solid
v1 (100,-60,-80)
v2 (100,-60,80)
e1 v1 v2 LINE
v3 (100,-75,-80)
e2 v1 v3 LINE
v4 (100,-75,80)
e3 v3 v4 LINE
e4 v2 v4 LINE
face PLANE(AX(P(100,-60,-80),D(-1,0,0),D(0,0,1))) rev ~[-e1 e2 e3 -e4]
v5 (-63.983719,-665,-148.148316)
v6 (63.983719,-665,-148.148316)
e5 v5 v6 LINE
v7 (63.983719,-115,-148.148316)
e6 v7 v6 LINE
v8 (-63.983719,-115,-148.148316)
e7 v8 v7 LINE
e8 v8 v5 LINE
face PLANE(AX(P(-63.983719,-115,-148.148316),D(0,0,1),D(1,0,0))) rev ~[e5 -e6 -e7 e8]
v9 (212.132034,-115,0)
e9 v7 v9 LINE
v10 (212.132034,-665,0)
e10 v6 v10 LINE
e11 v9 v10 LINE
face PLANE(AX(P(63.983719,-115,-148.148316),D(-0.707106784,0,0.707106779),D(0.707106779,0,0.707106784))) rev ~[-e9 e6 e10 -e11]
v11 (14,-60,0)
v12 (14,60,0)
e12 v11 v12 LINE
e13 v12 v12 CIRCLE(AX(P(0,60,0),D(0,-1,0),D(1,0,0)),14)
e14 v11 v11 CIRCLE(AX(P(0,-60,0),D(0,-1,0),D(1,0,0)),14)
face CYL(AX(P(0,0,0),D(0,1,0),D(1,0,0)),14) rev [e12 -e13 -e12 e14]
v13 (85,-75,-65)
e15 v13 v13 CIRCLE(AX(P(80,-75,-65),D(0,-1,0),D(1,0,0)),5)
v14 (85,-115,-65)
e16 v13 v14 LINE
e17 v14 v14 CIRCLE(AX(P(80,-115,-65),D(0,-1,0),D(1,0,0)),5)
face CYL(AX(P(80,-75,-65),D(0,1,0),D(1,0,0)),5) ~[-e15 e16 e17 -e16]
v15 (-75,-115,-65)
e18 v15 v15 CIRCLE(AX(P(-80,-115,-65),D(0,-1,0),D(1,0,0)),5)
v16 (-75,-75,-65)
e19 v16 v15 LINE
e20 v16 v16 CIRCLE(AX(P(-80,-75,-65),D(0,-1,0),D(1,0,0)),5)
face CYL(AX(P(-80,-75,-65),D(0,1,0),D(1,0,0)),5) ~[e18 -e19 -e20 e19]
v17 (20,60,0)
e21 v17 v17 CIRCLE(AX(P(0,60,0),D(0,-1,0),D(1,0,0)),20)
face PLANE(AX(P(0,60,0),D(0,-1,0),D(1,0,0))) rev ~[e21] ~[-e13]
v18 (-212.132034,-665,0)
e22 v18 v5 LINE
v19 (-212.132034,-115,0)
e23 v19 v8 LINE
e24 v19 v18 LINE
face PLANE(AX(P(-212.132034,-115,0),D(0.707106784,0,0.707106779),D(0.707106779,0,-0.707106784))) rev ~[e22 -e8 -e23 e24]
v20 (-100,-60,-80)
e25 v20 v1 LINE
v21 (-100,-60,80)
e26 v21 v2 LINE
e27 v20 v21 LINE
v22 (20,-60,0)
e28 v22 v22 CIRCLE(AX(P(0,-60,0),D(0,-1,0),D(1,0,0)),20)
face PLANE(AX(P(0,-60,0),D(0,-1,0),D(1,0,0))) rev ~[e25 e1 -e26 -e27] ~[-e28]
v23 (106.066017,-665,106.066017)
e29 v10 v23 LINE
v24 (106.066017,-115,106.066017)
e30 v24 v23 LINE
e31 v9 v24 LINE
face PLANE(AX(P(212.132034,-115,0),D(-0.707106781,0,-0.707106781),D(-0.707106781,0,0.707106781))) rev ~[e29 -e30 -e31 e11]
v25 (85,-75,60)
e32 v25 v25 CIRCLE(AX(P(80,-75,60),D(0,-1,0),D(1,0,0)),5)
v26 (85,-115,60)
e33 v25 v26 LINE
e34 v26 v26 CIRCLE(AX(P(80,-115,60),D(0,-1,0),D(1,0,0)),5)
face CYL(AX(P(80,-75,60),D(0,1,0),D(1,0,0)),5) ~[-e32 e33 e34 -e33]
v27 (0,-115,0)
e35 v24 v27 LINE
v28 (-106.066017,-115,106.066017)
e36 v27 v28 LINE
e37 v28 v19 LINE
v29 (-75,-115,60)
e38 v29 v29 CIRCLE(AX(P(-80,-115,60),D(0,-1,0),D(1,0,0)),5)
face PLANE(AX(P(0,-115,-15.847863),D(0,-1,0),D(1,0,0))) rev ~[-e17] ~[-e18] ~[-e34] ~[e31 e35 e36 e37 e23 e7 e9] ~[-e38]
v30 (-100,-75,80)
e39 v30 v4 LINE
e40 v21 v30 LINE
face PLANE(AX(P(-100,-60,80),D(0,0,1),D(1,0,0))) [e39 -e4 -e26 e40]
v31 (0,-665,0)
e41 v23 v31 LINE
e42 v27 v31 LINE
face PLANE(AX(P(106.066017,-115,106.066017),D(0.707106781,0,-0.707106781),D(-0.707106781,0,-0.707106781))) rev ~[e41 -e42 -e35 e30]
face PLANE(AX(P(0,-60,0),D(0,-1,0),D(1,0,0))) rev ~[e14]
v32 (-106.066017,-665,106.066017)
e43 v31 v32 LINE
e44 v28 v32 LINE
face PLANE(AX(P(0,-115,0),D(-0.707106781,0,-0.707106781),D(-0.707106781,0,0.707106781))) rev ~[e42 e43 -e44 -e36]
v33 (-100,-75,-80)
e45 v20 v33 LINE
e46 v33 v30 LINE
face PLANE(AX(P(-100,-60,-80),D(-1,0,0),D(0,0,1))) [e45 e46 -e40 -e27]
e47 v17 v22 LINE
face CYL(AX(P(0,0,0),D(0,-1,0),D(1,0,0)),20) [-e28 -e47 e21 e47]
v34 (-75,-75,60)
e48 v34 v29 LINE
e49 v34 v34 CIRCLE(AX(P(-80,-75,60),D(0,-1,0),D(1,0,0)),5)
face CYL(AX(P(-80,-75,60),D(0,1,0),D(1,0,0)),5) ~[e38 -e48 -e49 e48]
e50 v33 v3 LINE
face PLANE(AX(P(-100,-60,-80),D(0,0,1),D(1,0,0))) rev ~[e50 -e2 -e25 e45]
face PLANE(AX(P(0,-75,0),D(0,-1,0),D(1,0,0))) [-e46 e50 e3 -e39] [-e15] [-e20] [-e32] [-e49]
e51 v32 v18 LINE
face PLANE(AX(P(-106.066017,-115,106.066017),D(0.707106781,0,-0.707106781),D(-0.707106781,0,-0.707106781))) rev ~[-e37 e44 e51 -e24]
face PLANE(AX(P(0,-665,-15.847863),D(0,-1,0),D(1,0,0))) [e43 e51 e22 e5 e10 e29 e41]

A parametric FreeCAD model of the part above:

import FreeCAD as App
import Part
import Sketcher

V = App.Vector
Q = App.Units.Quantity

doc = App.newDocument("Part")
body = doc.addObject("PartDesign::Body", "Body")

# Sketch on XZ plane
sketch1 = doc.addObject("Sketcher::SketchObject", "Sketch")
body.addObject(sketch1)
sketch1.AttachmentSupport = (doc.XZ_Plane, [""])
sketch1.MapMode = "FlatFace"
sketch1.addGeometry([
    Part.Circle(V(0, 0, 0), V(0, 0, 1), 20),
    Part.Circle(V(0, 0, 0), V(0, 0, 1), 14),
], False)
sketch1.addConstraint([
    Sketcher.Constraint("Coincident", 0, 3, -1, 1),
    Sketcher.Constraint("Coincident", 1, 3, -1, 1),
    Sketcher.Constraint("Diameter", 0, Q("40 mm")),
    Sketcher.Constraint("Diameter", 1, Q("28 mm")),
])
pad1 = doc.addObject("PartDesign::Pad", "Pad")
body.addObject(pad1)
pad1.Profile = sketch1
pad1.Length = 120
pad1.Midplane = True

# Sketch on XZ plane
sketch2 = doc.addObject("Sketcher::SketchObject", "Sketch001")
body.addObject(sketch2)
sketch2.AttachmentSupport = (doc.XZ_Plane, [""])
sketch2.MapMode = "FlatFace"
sketch2.AttachmentOffset = App.Placement(V(0, 0, 60), App.Rotation())
sketch2.addGeometry([
    Part.LineSegment(V(-100, 80, 0), V(-100, -80, 0)),
    Part.LineSegment(V(-100, -80, 0), V(100, -80, 0)),
    Part.LineSegment(V(100, -80, 0), V(100, 80, 0)),
    Part.LineSegment(V(100, 80, 0), V(-100, 80, 0)),
], False)
sketch2.addConstraint([
    Sketcher.Constraint("Coincident", 0, 2, 1, 1),
    Sketcher.Constraint("Coincident", 1, 2, 2, 1),
    Sketcher.Constraint("Coincident", 2, 2, 3, 1),
    Sketcher.Constraint("Coincident", 3, 2, 0, 1),
    Sketcher.Constraint("Vertical", 0),
    Sketcher.Constraint("Horizontal", 1),
    Sketcher.Constraint("Vertical", 2),
    Sketcher.Constraint("Horizontal", 3),
    Sketcher.Constraint("Symmetric", 0, 2, 2, 2, -1, 1),
    Sketcher.Constraint("DistanceX", 1, 1, 1, 2, Q("200 mm")),
    Sketcher.Constraint("DistanceY", 0, 2, 0, 1, Q("160 mm")),
])
pad2 = doc.addObject("PartDesign::Pad", "Pad001")
body.addObject(pad2)
pad2.Profile = sketch2
pad2.Length = 15

# Sketch on XZ plane
sketch3 = doc.addObject("Sketcher::SketchObject", "Sketch002")
body.addObject(sketch3)
sketch3.AttachmentSupport = (doc.XZ_Plane, [""])
sketch3.MapMode = "FlatFace"
sketch3.AttachmentOffset = App.Placement(V(0, 0, 75), App.Rotation())
sketch3.addGeometry([
    Part.Circle(V(-80, 60, 0), V(0, 0, 1), 5),
    Part.Circle(V(-80, -65, 0), V(0, 0, 1), 5),
    Part.Circle(V(80, -65, 0), V(0, 0, 1), 5),
    Part.Circle(V(80, 60, 0), V(0, 0, 1), 5),
], False)
sketch3.addConstraint([
    Sketcher.Constraint("Equal", 0, 1),
    Sketcher.Constraint("Equal", 1, 2),
    Sketcher.Constraint("Equal", 2, 3),
    Sketcher.Constraint("Symmetric", 1, 3, 2, 3, -2),
    Sketcher.Constraint("Symmetric", 0, 3, 3, 3, -2),
    Sketcher.Constraint("Vertical", 0, 3, 1, 3),
    Sketcher.Constraint("Diameter", 0, Q("10 mm")),
    Sketcher.Constraint("DistanceX", 0, 3, -1, 1, Q("80 mm")),
    Sketcher.Constraint("DistanceY", -1, 1, 0, 3, Q("60 mm")),
    Sketcher.Constraint("DistanceY", 1, 3, -1, 1, Q("65 mm")),
])
pad3 = doc.addObject("PartDesign::Pad", "Pad002")
body.addObject(pad3)
pad3.Profile = sketch3
pad3.Length = 40

# Sketch on XZ plane
sketch4 = doc.addObject("Sketcher::SketchObject", "Sketch003")
body.addObject(sketch4)
sketch4.AttachmentSupport = (doc.XZ_Plane, [""])
sketch4.MapMode = "FlatFace"
sketch4.AttachmentOffset = App.Placement(V(0, 0, 115), App.Rotation())
sketch4.addGeometry([
    Part.LineSegment(V(0, 0, 0), V(-106, 106, 0)),  # 0
    Part.LineSegment(V(-106, 106, 0), V(-212, 0, 0)),  # 1
    Part.LineSegment(V(-212, 0, 0), V(-64, -148, 0)),  # 2
    Part.LineSegment(V(-64, -148, 0), V(64, -148, 0)),  # 3
    Part.LineSegment(V(64, -148, 0), V(212, 0, 0)),  # 4
    Part.LineSegment(V(212, 0, 0), V(106, 106, 0)),  # 5
    Part.LineSegment(V(106, 106, 0), V(0, 0, 0)),  # 6
], False)
sketch4.addConstraint([
    Sketcher.Constraint("Coincident", 0, 2, 1, 1),
    Sketcher.Constraint("Coincident", 1, 2, 2, 1),
    Sketcher.Constraint("Coincident", 2, 2, 3, 1),
    Sketcher.Constraint("Coincident", 3, 2, 4, 1),
    Sketcher.Constraint("Coincident", 4, 2, 5, 1),
    Sketcher.Constraint("Coincident", 5, 2, 6, 1),
    Sketcher.Constraint("Coincident", 6, 2, 0, 1),
    Sketcher.Constraint("Horizontal", 3),
    Sketcher.Constraint("Coincident", 6, 2, -1, 1),
    Sketcher.Constraint("Symmetric", 1, 2, 4, 2, -1, 1),
    Sketcher.Constraint("Symmetric", 0, 2, 5, 2, -2),
    Sketcher.Constraint("PointOnObject", 1, 2, -1),
    Sketcher.Constraint("Perpendicular", 0, 1),
    Sketcher.Constraint("Perpendicular", 1, 2),
    Sketcher.Constraint("Perpendicular", 2, 4),
    Sketcher.Constraint("Perpendicular", 4, 5),
    Sketcher.Constraint("Distance", 0, Q("150 mm")),
    Sketcher.Constraint("DistanceX", 3, 1, 3, 2, Q("127.967438 mm")),
])
pad4 = doc.addObject("PartDesign::Pad", "Pad003")
body.addObject(pad4)
pad4.Profile = sketch4
pad4.Length = 550

doc.recompute()
